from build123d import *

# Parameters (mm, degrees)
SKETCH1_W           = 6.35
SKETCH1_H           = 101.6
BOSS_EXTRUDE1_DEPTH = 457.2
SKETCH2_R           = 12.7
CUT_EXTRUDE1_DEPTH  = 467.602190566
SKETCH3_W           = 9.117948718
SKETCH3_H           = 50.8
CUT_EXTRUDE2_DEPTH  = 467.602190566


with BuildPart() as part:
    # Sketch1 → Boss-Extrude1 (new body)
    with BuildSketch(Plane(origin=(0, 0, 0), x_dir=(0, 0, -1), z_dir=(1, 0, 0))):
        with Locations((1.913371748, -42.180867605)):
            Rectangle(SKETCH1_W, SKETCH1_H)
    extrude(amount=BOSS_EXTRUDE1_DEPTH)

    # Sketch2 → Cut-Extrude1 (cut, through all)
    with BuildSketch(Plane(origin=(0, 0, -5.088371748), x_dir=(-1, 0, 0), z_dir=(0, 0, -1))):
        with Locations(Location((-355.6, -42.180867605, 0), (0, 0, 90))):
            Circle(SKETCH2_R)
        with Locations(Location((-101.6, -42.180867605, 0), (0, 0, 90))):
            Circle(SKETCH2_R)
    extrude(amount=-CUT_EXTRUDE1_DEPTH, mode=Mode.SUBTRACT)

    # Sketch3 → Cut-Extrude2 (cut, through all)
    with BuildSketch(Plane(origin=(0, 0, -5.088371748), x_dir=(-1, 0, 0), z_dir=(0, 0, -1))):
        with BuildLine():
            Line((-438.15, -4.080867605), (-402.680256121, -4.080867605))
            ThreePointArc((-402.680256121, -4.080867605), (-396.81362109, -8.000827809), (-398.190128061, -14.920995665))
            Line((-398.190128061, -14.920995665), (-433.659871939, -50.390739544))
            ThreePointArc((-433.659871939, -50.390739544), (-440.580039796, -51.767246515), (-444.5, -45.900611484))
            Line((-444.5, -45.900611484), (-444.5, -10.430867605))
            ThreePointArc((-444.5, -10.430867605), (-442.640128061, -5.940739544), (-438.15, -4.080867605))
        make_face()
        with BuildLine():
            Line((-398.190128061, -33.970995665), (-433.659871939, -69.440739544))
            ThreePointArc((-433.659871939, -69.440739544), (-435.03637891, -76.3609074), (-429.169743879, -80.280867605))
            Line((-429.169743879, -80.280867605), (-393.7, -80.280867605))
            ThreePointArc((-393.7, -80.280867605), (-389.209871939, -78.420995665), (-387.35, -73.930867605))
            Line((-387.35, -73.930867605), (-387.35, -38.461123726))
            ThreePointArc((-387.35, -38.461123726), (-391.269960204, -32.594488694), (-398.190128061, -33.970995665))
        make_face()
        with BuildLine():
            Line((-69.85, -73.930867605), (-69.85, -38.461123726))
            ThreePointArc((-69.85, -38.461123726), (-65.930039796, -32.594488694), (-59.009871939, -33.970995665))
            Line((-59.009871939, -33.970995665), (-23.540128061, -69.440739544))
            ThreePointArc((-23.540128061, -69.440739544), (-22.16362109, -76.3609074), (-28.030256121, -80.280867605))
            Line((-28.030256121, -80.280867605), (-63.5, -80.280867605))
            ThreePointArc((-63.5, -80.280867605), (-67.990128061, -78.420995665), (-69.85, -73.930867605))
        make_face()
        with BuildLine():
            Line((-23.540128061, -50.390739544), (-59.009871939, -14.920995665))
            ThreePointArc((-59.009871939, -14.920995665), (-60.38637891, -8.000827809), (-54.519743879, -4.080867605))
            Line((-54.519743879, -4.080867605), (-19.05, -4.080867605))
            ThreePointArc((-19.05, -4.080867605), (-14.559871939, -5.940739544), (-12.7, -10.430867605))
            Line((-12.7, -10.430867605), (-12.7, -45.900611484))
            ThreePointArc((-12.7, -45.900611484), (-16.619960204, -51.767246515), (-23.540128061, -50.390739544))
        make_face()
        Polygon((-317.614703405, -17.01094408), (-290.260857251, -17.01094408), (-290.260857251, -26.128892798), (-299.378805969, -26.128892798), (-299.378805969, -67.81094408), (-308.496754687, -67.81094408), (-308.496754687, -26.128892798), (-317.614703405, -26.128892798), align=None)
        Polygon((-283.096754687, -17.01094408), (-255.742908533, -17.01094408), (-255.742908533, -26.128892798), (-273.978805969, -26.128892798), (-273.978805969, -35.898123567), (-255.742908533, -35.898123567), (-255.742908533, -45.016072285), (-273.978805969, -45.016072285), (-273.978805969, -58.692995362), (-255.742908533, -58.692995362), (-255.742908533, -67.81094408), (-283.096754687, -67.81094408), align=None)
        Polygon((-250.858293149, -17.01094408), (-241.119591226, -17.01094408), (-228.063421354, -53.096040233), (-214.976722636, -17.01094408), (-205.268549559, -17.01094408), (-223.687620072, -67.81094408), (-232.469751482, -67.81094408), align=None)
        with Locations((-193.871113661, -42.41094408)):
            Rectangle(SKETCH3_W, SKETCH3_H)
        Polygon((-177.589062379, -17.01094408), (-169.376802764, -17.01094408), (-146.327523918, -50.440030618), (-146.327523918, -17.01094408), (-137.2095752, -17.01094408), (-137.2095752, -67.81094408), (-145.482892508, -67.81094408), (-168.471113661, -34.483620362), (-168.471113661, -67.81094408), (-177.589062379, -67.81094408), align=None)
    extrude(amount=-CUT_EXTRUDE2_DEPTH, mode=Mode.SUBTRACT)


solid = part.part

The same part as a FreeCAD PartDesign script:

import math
import FreeCAD as App
import Part
import Sketcher

V = App.Vector
Q = App.Units.Quantity

doc = App.newDocument("Part")
body = doc.addObject("PartDesign::Body", "Body")

sketch1 = doc.addObject("Sketcher::SketchObject", "Sketch")
body.addObject(sketch1)
sketch1.AttachmentSupport = (doc.YZ_Plane, [""])
sketch1.MapMode = "FlatFace"
sketch1.addGeometry([
    Part.LineSegment(V(8.619132, 1.261628, 0), V(-92.980868, 1.261628, 0)),
    Part.LineSegment(V(-92.980868, 1.261628, 0), V(-92.980868, -5.088372, 0)),
    Part.LineSegment(V(-92.980868, -5.088372, 0), V(8.619132, -5.088372, 0)),
    Part.LineSegment(V(8.619132, -5.088372, 0), V(8.619132, 1.261628, 0)),
], False)
sketch1.addConstraint([
    Sketcher.Constraint("Coincident", 0, 2, 1, 1),
    Sketcher.Constraint("Coincident", 1, 2, 2, 1),
    Sketcher.Constraint("Coincident", 2, 2, 3, 1),
    Sketcher.Constraint("Coincident", 3, 2, 0, 1),
    Sketcher.Constraint("Horizontal", 0),
    Sketcher.Constraint("Vertical", 1),
    Sketcher.Constraint("Horizontal", 2),
    Sketcher.Constraint("Vertical", 3),
    Sketcher.Constraint("DistanceX", 0, 2, 0, 1, Q("4 in")),
    Sketcher.Constraint("DistanceY", 1, 2, 1, 1, Q("0.25 in")),
    Sketcher.Constraint("DistanceY", -1, 1, 0, 2, 1.261628),
    Sketcher.Constraint("DistanceX", 0, 2, -1, 1, 92.980868),
])
pad1 = doc.addObject("PartDesign::Pad", "Pad")
body.addObject(pad1)
pad1.Profile = sketch1
pad1.Length = Q("18 in")

sketch2 = doc.addObject("Sketcher::SketchObject", "Sketch001")
body.addObject(sketch2)
sketch2.AttachmentSupport = (doc.XY_Plane, [""])
sketch2.MapMode = "FlatFace"
sketch2.AttachmentOffset = App.Placement(V(0, 0, -5.088372), App.Rotation())
sketch2.addGeometry([
    Part.Circle(V(355.6, -42.180868, 0), V(0, 0, 1), 12.7),
    Part.Circle(V(101.6, -42.180868, 0), V(0, 0, 1), 12.7),
], False)
sketch2.addConstraint([
    Sketcher.Constraint("Equal", 0, 1),
    Sketcher.Constraint("Horizontal", 0, 3, 1, 3),
    Sketcher.Constraint("Diameter", 0, Q("1 in")),
    Sketcher.Constraint("DistanceX", -1, 1, 0, 3, Q("14 in")),
    Sketcher.Constraint("DistanceX", -1, 1, 1, 3, Q("4 in")),
    Sketcher.Constraint("DistanceY", 0, 3, -1, 1, 42.180868),
])
pocket1 = doc.addObject("PartDesign::Pocket", "Pocket")
body.addObject(pocket1)
pocket1.Profile = sketch2
pocket1.Type = "ThroughAll"
pocket1.Reversed = True

sketch3 = doc.addObject("Sketcher::SketchObject", "Sketch002")
body.addObject(sketch3)
sketch3.AttachmentSupport = (doc.XY_Plane, [""])
sketch3.MapMode = "FlatFace"
sketch3.AttachmentOffset = App.Placement(V(0, 0, -5.088372), App.Rotation())
sketch3.addGeometry([
    Part.LineSegment(V(402.680256, -4.080868, 0), V(438.15, -4.080868, 0)),
    Part.ArcOfCircle(Part.Circle(V(438.15, -10.430868, 0), V(0, 0, 1), 6.35), math.radians(0), math.radians(90)),
    Part.LineSegment(V(444.5, -10.430868, 0), V(444.5, -45.900611, 0)),
    Part.ArcOfCircle(Part.Circle(V(438.15, -45.900611, 0), V(0, 0, 1), 6.35), math.radians(-135), math.radians(0)),
    Part.LineSegment(V(433.659872, -50.39074, 0), V(398.190128, -14.920996, 0)),
    Part.ArcOfCircle(Part.Circle(V(402.680256, -10.430868, 0), V(0, 0, 1), 6.35), math.radians(90), math.radians(225)),
    Part.LineSegment(V(398.190128, -33.970996, 0), V(433.659872, -69.44074, 0)),
    Part.ArcOfCircle(Part.Circle(V(429.169744, -73.930868, 0), V(0, 0, 1), 6.35), math.radians(-90), math.radians(45)),
    Part.LineSegment(V(429.169744, -80.280868, 0), V(393.7, -80.280868, 0)),
    Part.ArcOfCircle(Part.Circle(V(393.7, -73.930868, 0), V(0, 0, 1), 6.35), math.radians(180), math.radians(270)),
    Part.LineSegment(V(387.35, -73.930868, 0), V(387.35, -38.461124, 0)),
    Part.ArcOfCircle(Part.Circle(V(393.7, -38.461124, 0), V(0, 0, 1), 6.35), math.radians(45), math.radians(180)),
    Part.LineSegment(V(69.85, -38.461124, 0), V(69.85, -73.930868, 0)),
    Part.ArcOfCircle(Part.Circle(V(63.5, -73.930868, 0), V(0, 0, 1), 6.35), math.radians(-90), math.radians(0)),
    Part.LineSegment(V(63.5, -80.280868, 0), V(28.030256, -80.280868, 0)),
    Part.ArcOfCircle(Part.Circle(V(28.030256, -73.930868, 0), V(0, 0, 1), 6.35), math.radians(135), math.radians(270)),
    Part.LineSegment(V(23.540128, -69.44074, 0), V(59.009872, -33.970996, 0)),
    Part.ArcOfCircle(Part.Circle(V(63.5, -38.461124, 0), V(0, 0, 1), 6.35), math.radians(0), math.radians(135)),
    Part.LineSegment(V(59.009872, -14.920996, 0), V(23.540128, -50.39074, 0)),
    Part.ArcOfCircle(Part.Circle(V(19.05, -45.900611, 0), V(0, 0, 1), 6.35), math.radians(180), math.radians(315)),
    Part.LineSegment(V(12.7, -45.900611, 0), V(12.7, -10.430868, 0)),
    Part.ArcOfCircle(Part.Circle(V(19.05, -10.430868, 0), V(0, 0, 1), 6.35), math.radians(90), math.radians(180)),
    Part.LineSegment(V(19.05, -4.080868, 0), V(54.519744, -4.080868, 0)),
    Part.ArcOfCircle(Part.Circle(V(54.519744, -10.430868, 0), V(0, 0, 1), 6.35), math.radians(-45), math.radians(90)),
    Part.LineSegment(V(290.260857, -17.010944, 0), V(317.614703, -17.010944, 0)),
    Part.LineSegment(V(317.614703, -17.010944, 0), V(317.614703, -26.128893, 0)),
    Part.LineSegment(V(317.614703, -26.128893, 0), V(308.496755, -26.128893, 0)),
    Part.LineSegment(V(308.496755, -26.128893, 0), V(308.496755, -67.810944, 0)),
    Part.LineSegment(V(308.496755, -67.810944, 0), V(299.378806, -67.810944, 0)),
    Part.LineSegment(V(299.378806, -67.810944, 0), V(299.378806, -26.128893, 0)),
    Part.LineSegment(V(299.378806, -26.128893, 0), V(290.260857, -26.128893, 0)),
    Part.LineSegment(V(290.260857, -26.128893, 0), V(290.260857, -17.010944, 0)),
    Part.LineSegment(V(255.742909, -17.010944, 0), V(283.096755, -17.010944, 0)),
    Part.LineSegment(V(283.096755, -17.010944, 0), V(283.096755, -67.810944, 0)),
    Part.LineSegment(V(283.096755, -67.810944, 0), V(255.742909, -67.810944, 0)),
    Part.LineSegment(V(255.742909, -67.810944, 0), V(255.742909, -58.692995, 0)),
    Part.LineSegment(V(255.742909, -58.692995, 0), V(273.978806, -58.692995, 0)),
    Part.LineSegment(V(273.978806, -58.692995, 0), V(273.978806, -45.016072, 0)),
    Part.LineSegment(V(273.978806, -45.016072, 0), V(255.742909, -45.016072, 0)),
    Part.LineSegment(V(255.742909, -45.016072, 0), V(255.742909, -35.898124, 0)),
    Part.LineSegment(V(255.742909, -35.898124, 0), V(273.978806, -35.898124, 0)),
    Part.LineSegment(V(273.978806, -35.898124, 0), V(273.978806, -26.128893, 0)),
    Part.LineSegment(V(273.978806, -26.128893, 0), V(255.742909, -26.128893, 0)),
    Part.LineSegment(V(255.742909, -26.128893, 0), V(255.742909, -17.010944, 0)),
    Part.LineSegment(V(241.119591, -17.010944, 0), V(250.858293, -17.010944, 0)),
    Part.LineSegment(V(250.858293, -17.010944, 0), V(232.469751, -67.810944, 0)),
    Part.LineSegment(V(232.469751, -67.810944, 0), V(223.68762, -67.810944, 0)),
    Part.LineSegment(V(223.68762, -67.810944, 0), V(205.26855, -17.010944, 0)),
    Part.LineSegment(V(205.26855, -17.010944, 0), V(214.976723, -17.010944, 0)),
    Part.LineSegment(V(214.976723, -17.010944, 0), V(228.063421, -53.09604, 0)),
    Part.LineSegment(V(228.063421, -53.09604, 0), V(241.119591, -17.010944, 0)),
    Part.LineSegment(V(198.430088, -17.010944, 0), V(198.430088, -67.810944, 0)),
    Part.LineSegment(V(198.430088, -67.810944, 0), V(189.312139, -67.810944, 0)),
    Part.LineSegment(V(189.312139, -67.810944, 0), V(189.312139, -17.010944, 0)),
    Part.LineSegment(V(189.312139, -17.010944, 0), V(198.430088, -17.010944, 0)),
    Part.LineSegment(V(169.376803, -17.010944, 0), V(177.589062, -17.010944, 0)),
    Part.LineSegment(V(177.589062, -17.010944, 0), V(177.589062, -67.810944, 0)),
    Part.LineSegment(V(177.589062, -67.810944, 0), V(168.471114, -67.810944, 0)),
    Part.LineSegment(V(168.471114, -67.810944, 0), V(168.471114, -34.48362, 0)),
    Part.LineSegment(V(168.471114, -34.48362, 0), V(145.482893, -67.810944, 0)),
    Part.LineSegment(V(145.482893, -67.810944, 0), V(137.209575, -67.810944, 0)),
    Part.LineSegment(V(137.209575, -67.810944, 0), V(137.209575, -17.010944, 0)),
    Part.LineSegment(V(137.209575, -17.010944, 0), V(146.327524, -17.010944, 0)),
    Part.LineSegment(V(146.327524, -17.010944, 0), V(146.327524, -50.440031, 0)),
    Part.LineSegment(V(146.327524, -50.440031, 0), V(169.376803, -17.010944, 0)),
], False)
sketch3.addConstraint([
    Sketcher.Constraint("Tangent", 0, 2, 1, 2),
    Sketcher.Constraint("Tangent", 1, 1, 2, 1),
    Sketcher.Constraint("Tangent", 2, 2, 3, 2),
    Sketcher.Constraint("Tangent", 3, 1, 4, 1),
    Sketcher.Constraint("Tangent", 4, 2, 5, 2),
    Sketcher.Constraint("Tangent", 5, 1, 0, 1),
    Sketcher.Constraint("Tangent", 6, 2, 7, 2),
    Sketcher.Constraint("Tangent", 7, 1, 8, 1),
    Sketcher.Constraint("Tangent", 8, 2, 9, 2),
    Sketcher.Constraint("Tangent", 9, 1, 10, 1),
    Sketcher.Constraint("Tangent", 10, 2, 11, 2),
    Sketcher.Constraint("Tangent", 11, 1, 6, 1),
    Sketcher.Constraint("Tangent", 12, 2, 13, 2),
    Sketcher.Constraint("Tangent", 13, 1, 14, 1),
    Sketcher.Constraint("Tangent", 14, 2, 15, 2),
    Sketcher.Constraint("Tangent", 15, 1, 16, 1),
    Sketcher.Constraint("Tangent", 16, 2, 17, 2),
    Sketcher.Constraint("Tangent", 17, 1, 12, 1),
    Sketcher.Constraint("Tangent", 18, 2, 19, 2),
    Sketcher.Constraint("Tangent", 19, 1, 20, 1),
    Sketcher.Constraint("Tangent", 20, 2, 21, 2),
    Sketcher.Constraint("Tangent", 21, 1, 22, 1),
    Sketcher.Constraint("Tangent", 22, 2, 23, 2),
    Sketcher.Constraint("Tangent", 23, 1, 18, 1),
    Sketcher.Constraint("Coincident", 24, 2, 25, 1),
    Sketcher.Constraint("Coincident", 25, 2, 26, 1),
    Sketcher.Constraint("Coincident", 26, 2, 27, 1),
    Sketcher.Constraint("Coincident", 27, 2, 28, 1),
    Sketcher.Constraint("Coincident", 28, 2, 29, 1),
    Sketcher.Constraint("Coincident", 29, 2, 30, 1),
    Sketcher.Constraint("Coincident", 30, 2, 31, 1),
    Sketcher.Constraint("Coincident", 31, 2, 24, 1),
    Sketcher.Constraint("Coincident", 32, 2, 33, 1),
    Sketcher.Constraint("Coincident", 33, 2, 34, 1),
    Sketcher.Constraint("Coincident", 34, 2, 35, 1),
    Sketcher.Constraint("Coincident", 35, 2, 36, 1),
    Sketcher.Constraint("Coincident", 36, 2, 37, 1),
    Sketcher.Constraint("Coincident", 37, 2, 38, 1),
    Sketcher.Constraint("Coincident", 38, 2, 39, 1),
    Sketcher.Constraint("Coincident", 39, 2, 40, 1),
    Sketcher.Constraint("Coincident", 40, 2, 41, 1),
    Sketcher.Constraint("Coincident", 41, 2, 42, 1),
    Sketcher.Constraint("Coincident", 42, 2, 43, 1),
    Sketcher.Constraint("Coincident", 43, 2, 32, 1),
    Sketcher.Constraint("Coincident", 44, 2, 45, 1),
    Sketcher.Constraint("Coincident", 45, 2, 46, 1),
    Sketcher.Constraint("Coincident", 46, 2, 47, 1),
    Sketcher.Constraint("Coincident", 47, 2, 48, 1),
    Sketcher.Constraint("Coincident", 48, 2, 49, 1),
    Sketcher.Constraint("Coincident", 49, 2, 50, 1),
    Sketcher.Constraint("Coincident", 50, 2, 44, 1),
    Sketcher.Constraint("Coincident", 51, 2, 52, 1),
    Sketcher.Constraint("Coincident", 52, 2, 53, 1),
    Sketcher.Constraint("Coincident", 53, 2, 54, 1),
    Sketcher.Constraint("Coincident", 54, 2, 51, 1),
    Sketcher.Constraint("Coincident", 55, 2, 56, 1),
    Sketcher.Constraint("Coincident", 56, 2, 57, 1),
    Sketcher.Constraint("Coincident", 57, 2, 58, 1),
    Sketcher.Constraint("Coincident", 58, 2, 59, 1),
    Sketcher.Constraint("Coincident", 59, 2, 60, 1),
    Sketcher.Constraint("Coincident", 60, 2, 61, 1),
    Sketcher.Constraint("Coincident", 61, 2, 62, 1),
    Sketcher.Constraint("Coincident", 62, 2, 63, 1),
    Sketcher.Constraint("Coincident", 63, 2, 64, 1),
    Sketcher.Constraint("Coincident", 64, 2, 55, 1),
    Sketcher.Constraint("Horizontal", 0),
    Sketcher.Constraint("Vertical", 2),
    Sketcher.Constraint("Horizontal", 8),
    Sketcher.Constraint("Vertical", 10),
    Sketcher.Constraint("Vertical", 12),
    Sketcher.Constraint("Horizontal", 14),
    Sketcher.Constraint("Vertical", 20),
    Sketcher.Constraint("Horizontal", 22),
    Sketcher.Constraint("Horizontal", 24),
    Sketcher.Constraint("Vertical", 25),
    Sketcher.Constraint("Horizontal", 26),
    Sketcher.Constraint("Vertical", 27),
    Sketcher.Constraint("Horizontal", 28),
    Sketcher.Constraint("Vertical", 29),
    Sketcher.Constraint("Horizontal", 30),
    Sketcher.Constraint("Vertical", 31),
    Sketcher.Constraint("Horizontal", 32),
    Sketcher.Constraint("Vertical", 33),
    Sketcher.Constraint("Horizontal", 34),
    Sketcher.Constraint("Vertical", 35),
    Sketcher.Constraint("Horizontal", 36),
    Sketcher.Constraint("Vertical", 37),
    Sketcher.Constraint("Horizontal", 38),
    Sketcher.Constraint("Vertical", 39),
    Sketcher.Constraint("Horizontal", 40),
    Sketcher.Constraint("Vertical", 41),
    Sketcher.Constraint("Horizontal", 42),
    Sketcher.Constraint("Vertical", 43),
    Sketcher.Constraint("Horizontal", 44),
    Sketcher.Constraint("Horizontal", 46),
    Sketcher.Constraint("Horizontal", 48),
    Sketcher.Constraint("Vertical", 51),
    Sketcher.Constraint("Horizontal", 52),
    Sketcher.Constraint("Vertical", 53),
    Sketcher.Constraint("Horizontal", 54),
    Sketcher.Constraint("Horizontal", 55),
    Sketcher.Constraint("Vertical", 56),
    Sketcher.Constraint("Horizontal", 57),
    Sketcher.Constraint("Vertical", 58),
    Sketcher.Constraint("Horizontal", 60),
    Sketcher.Constraint("Vertical", 61),
    Sketcher.Constraint("Horizontal", 62),
    Sketcher.Constraint("Vertical", 63),
    Sketcher.Constraint("Equal", 1, 3),
    Sketcher.Constraint("Equal", 3, 5),
    Sketcher.Constraint("Equal", 5, 7),
    Sketcher.Constraint("Equal", 7, 9),
    Sketcher.Constraint("Equal", 9, 11),
    Sketcher.Constraint("Equal", 11, 13),
    Sketcher.Constraint("Equal", 13, 15),
    Sketcher.Constraint("Equal", 15, 17),
    Sketcher.Constraint("Equal", 17, 19),
    Sketcher.Constraint("Equal", 19, 21),
    Sketcher.Constraint("Equal", 21, 23),
    Sketcher.Constraint("Parallel", 4, 6),
    Sketcher.Constraint("Perpendicular", 6, 16),
    Sketcher.Constraint("Parallel", 16, 18),
    Sketcher.Constraint("Horizontal", 9, 3, 13, 3),
    Sketcher.Constraint("Horizontal", 11, 3, 17, 3),
    Sketcher.Constraint("Horizontal", 3, 3, 19, 3),
    Sketcher.Constraint("Horizontal", 5, 3, 21, 3),
    Sketcher.Constraint("Horizontal", 6, 2, 15, 1),
    Sketcher.Constraint("Horizontal", 26, 2, 29, 2),
    Sketcher.Constraint("Horizontal", 31, 2, 32, 2),
    Sketcher.Constraint("Horizontal", 28, 2, 33, 2),
    Sketcher.Constraint("Horizontal", 30, 2, 41, 2),
    Sketcher.Constraint("Horizontal", 43, 2, 44, 2),
    Sketcher.Constraint("Horizontal", 34, 2, 45, 2),
    Sketcher.Constraint("Horizontal", 44, 2, 47, 2),
    Sketcher.Constraint("Horizontal", 46, 2, 51, 2),
    Sketcher.Constraint("Horizontal", 50, 2, 53, 2),
    Sketcher.Constraint("Horizontal", 54, 2, 55, 2),
    Sketcher.Constraint("Horizontal", 52, 2, 56, 2),
    Sketcher.Constraint("Horizontal", 57, 2, 59, 2),
    Sketcher.Constraint("Horizontal", 55, 2, 61, 2),
    Sketcher.Constraint("Vertical", 3, 1, 6, 2),
    Sketcher.Constraint("Vertical", 4, 2, 11, 1),
    Sketcher.Constraint("Vertical", 15, 1, 18, 2),
    Sketcher.Constraint("Vertical", 35, 2, 38, 2),
    Sketcher.Constraint("Vertical", 37, 2, 40, 2),
    Sketcher.Constraint("Vertical", 39, 2, 42, 2),
    Sketcher.Constraint("Equal", 26, 28),
    Sketcher.Constraint("Equal", 28, 30),
    Sketcher.Constraint("Equal", 24, 32),
    Sketcher.Constraint("Equal", 30, 52),
    Sketcher.Constraint("Equal", 54, 57),
    Sketcher.Constraint("Equal", 57, 62),
    Sketcher.Constraint("Equal", 62, 25),
    Sketcher.Constraint("Equal", 31, 35),
    Sketcher.Constraint("Equal", 35, 39),
    Sketcher.Constraint("DistanceY", 33, 2, 33, 1, Q("2 in")),
    Sketcher.Constraint("Radius", 1, Q("0.25 in")),
    Sketcher.Constraint("DistanceX", -1, 1, 9, 3, Q("15.5 in")),
    Sketcher.Constraint("DistanceX", -1, 1, 13, 3, Q("2.5 in")),
    Sketcher.Constraint("DistanceX", -1, 1, 1, 1, Q("17.5 in")),
    Sketcher.Constraint("DistanceX", 44, 1, 44, 2, 9.738702),
    Sketcher.Constraint("DistanceX", 26, 2, 26, 1, 9.117949),
    Sketcher.Constraint("DistanceX", 46, 2, 46, 1, 8.782131),
    Sketcher.Constraint("DistanceX", 55, 1, 55, 2, 8.21226),
    Sketcher.Constraint("DistanceY", 41, 1, 41, 2, 9.769231),
    Sketcher.Constraint("Distance", 45, 54.02572),
    Sketcher.Constraint("Distance", 47, 54.036119),
    Sketcher.Constraint("Distance", 49, 38.384839),
    Sketcher.Constraint("Distance", 50, 38.374441),
    Sketcher.Constraint("Distance", 59, 40.48665),
    Sketcher.Constraint("DistanceX", 36, 1, 36, 2, 18.235897),
    Sketcher.Constraint("DistanceX", 48, 1, 48, 2, 9.708173),
    Sketcher.Constraint("DistanceX", 60, 2, 60, 1, 8.273317),
    Sketcher.Constraint("DistanceY", 58, 1, 58, 2, 33.327324),
    Sketcher.Constraint("DistanceY", 63, 2, 63, 1, 33.429087),
    Sketcher.Constraint("DistanceY", 3, 3, -1, 1, 45.900611),
    Sketcher.Constraint("DistanceY", 6, 2, -1, 1, 69.44074),
    Sketcher.Constraint("DistanceX", -1, 1, 34, 2, 255.742909),
    Sketcher.Constraint("DistanceX", -1, 1, 45, 2, 232.469751),
    Sketcher.Constraint("DistanceY", 49, 2, -1, 1, 53.09604),
    Sketcher.Constraint("DistanceX", -1, 1, 51, 2, 198.430088),
    Sketcher.Constraint("DistanceX", -1, 1, 24, 2, 317.614703),
    Sketcher.Constraint("DistanceX", -1, 1, 55, 2, 177.589062),
])
pocket2 = doc.addObject("PartDesign::Pocket", "Pocket001")
body.addObject(pocket2)
pocket2.Profile = sketch3
pocket2.Type = "ThroughAll"
pocket2.Reversed = True

doc.recompute()
